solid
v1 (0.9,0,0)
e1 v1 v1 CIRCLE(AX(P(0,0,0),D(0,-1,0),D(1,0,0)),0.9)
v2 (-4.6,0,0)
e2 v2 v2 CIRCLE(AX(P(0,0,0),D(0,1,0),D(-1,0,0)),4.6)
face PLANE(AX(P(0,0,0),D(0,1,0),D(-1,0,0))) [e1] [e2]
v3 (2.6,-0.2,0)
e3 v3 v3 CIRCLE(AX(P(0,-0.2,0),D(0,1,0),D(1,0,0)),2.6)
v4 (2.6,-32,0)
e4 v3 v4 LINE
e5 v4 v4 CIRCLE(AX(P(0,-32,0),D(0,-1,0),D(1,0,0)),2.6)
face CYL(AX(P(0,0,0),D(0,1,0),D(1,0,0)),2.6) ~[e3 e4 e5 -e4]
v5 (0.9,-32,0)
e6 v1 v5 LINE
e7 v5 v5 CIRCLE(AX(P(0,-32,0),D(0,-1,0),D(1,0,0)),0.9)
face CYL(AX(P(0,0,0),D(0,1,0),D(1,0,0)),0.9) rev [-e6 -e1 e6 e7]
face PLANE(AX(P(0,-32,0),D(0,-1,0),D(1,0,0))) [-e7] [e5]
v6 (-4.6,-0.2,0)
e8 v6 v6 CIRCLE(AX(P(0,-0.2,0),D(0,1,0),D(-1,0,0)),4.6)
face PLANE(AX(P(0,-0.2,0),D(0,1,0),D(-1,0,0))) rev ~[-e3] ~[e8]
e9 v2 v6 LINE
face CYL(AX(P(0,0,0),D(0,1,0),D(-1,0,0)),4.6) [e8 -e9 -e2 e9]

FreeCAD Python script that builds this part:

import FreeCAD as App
import Part
import Sketcher
from FreeCAD import Vector

doc = App.newDocument("Part")
params = doc.addObject("Spreadsheet::Sheet", "Params")
for row, (alias, value) in enumerate([
    ("sketch1_diameter", "5.2 mm"),
    ("sketch1_diameter2", "1.8 mm"),
    ("pad1_length", "32 mm"),
    ("sketch2_diameter", "9.2 mm"),
    ("sketch2_diameter2", "5.2 mm"),
    ("pad2_length", "0.2 mm"),
], start=1):
    params.set(f"A{row}", alias)
    params.set(f"B{row}", "=" + value)
    params.setAlias(f"B{row}", alias)

body = doc.addObject("PartDesign::Body", "Body")

# Sketch on XZ plane
sketch1 = body.newObject("Sketcher::SketchObject", "Sketch")
sketch1.AttachmentSupport = (doc.getObject("XZ_Plane"), [""])
sketch1.MapMode = "FlatFace"
sketch1.addGeometry([
    Part.Circle(Vector(0, 0, 0), Vector(0, 0, 1), 2.6),
    Part.Circle(Vector(0, 0, 0), Vector(0, 0, 1), 0.9),
], False)
sketch1.addConstraint([
    Sketcher.Constraint("Coincident", 0, 3, -1, 1),
    Sketcher.Constraint("Coincident", 1, 3, -1, 1),
    Sketcher.Constraint("Diameter", 0, 5.2),
    Sketcher.Constraint("Diameter", 1, 1.8),
])
sketch1.setExpression("Constraints[2]", "Params.sketch1_diameter")
sketch1.setExpression("Constraints[3]", "Params.sketch1_diameter2")
pad1 = body.newObject("PartDesign::Pad", "Pad")
pad1.Profile = sketch1
pad1.setExpression("Length", "Params.pad1_length")

# Sketch on XZ plane
sketch2 = body.newObject("Sketcher::SketchObject", "Sketch001")
sketch2.AttachmentSupport = (doc.getObject("XZ_Plane"), [""])
sketch2.MapMode = "FlatFace"
sketch2.addGeometry([
    Part.Circle(Vector(0, 0, 0), Vector(0, 0, 1), 4.6),
    Part.Circle(Vector(0, 0, 0), Vector(0, 0, 1), 2.6),
], False)
sketch2.addConstraint([
    Sketcher.Constraint("Coincident", 0, 3, -1, 1),
    Sketcher.Constraint("Coincident", 1, 3, -1, 1),
    Sketcher.Constraint("Diameter", 0, 9.2),
    Sketcher.Constraint("Diameter", 1, 5.2),
])
sketch2.setExpression("Constraints[2]", "Params.sketch2_diameter")
sketch2.setExpression("Constraints[3]", "Params.sketch2_diameter2")
pad2 = body.newObject("PartDesign::Pad", "Pad001")
pad2.Profile = sketch2
pad2.setExpression("Length", "Params.pad2_length")

doc.recompute()
